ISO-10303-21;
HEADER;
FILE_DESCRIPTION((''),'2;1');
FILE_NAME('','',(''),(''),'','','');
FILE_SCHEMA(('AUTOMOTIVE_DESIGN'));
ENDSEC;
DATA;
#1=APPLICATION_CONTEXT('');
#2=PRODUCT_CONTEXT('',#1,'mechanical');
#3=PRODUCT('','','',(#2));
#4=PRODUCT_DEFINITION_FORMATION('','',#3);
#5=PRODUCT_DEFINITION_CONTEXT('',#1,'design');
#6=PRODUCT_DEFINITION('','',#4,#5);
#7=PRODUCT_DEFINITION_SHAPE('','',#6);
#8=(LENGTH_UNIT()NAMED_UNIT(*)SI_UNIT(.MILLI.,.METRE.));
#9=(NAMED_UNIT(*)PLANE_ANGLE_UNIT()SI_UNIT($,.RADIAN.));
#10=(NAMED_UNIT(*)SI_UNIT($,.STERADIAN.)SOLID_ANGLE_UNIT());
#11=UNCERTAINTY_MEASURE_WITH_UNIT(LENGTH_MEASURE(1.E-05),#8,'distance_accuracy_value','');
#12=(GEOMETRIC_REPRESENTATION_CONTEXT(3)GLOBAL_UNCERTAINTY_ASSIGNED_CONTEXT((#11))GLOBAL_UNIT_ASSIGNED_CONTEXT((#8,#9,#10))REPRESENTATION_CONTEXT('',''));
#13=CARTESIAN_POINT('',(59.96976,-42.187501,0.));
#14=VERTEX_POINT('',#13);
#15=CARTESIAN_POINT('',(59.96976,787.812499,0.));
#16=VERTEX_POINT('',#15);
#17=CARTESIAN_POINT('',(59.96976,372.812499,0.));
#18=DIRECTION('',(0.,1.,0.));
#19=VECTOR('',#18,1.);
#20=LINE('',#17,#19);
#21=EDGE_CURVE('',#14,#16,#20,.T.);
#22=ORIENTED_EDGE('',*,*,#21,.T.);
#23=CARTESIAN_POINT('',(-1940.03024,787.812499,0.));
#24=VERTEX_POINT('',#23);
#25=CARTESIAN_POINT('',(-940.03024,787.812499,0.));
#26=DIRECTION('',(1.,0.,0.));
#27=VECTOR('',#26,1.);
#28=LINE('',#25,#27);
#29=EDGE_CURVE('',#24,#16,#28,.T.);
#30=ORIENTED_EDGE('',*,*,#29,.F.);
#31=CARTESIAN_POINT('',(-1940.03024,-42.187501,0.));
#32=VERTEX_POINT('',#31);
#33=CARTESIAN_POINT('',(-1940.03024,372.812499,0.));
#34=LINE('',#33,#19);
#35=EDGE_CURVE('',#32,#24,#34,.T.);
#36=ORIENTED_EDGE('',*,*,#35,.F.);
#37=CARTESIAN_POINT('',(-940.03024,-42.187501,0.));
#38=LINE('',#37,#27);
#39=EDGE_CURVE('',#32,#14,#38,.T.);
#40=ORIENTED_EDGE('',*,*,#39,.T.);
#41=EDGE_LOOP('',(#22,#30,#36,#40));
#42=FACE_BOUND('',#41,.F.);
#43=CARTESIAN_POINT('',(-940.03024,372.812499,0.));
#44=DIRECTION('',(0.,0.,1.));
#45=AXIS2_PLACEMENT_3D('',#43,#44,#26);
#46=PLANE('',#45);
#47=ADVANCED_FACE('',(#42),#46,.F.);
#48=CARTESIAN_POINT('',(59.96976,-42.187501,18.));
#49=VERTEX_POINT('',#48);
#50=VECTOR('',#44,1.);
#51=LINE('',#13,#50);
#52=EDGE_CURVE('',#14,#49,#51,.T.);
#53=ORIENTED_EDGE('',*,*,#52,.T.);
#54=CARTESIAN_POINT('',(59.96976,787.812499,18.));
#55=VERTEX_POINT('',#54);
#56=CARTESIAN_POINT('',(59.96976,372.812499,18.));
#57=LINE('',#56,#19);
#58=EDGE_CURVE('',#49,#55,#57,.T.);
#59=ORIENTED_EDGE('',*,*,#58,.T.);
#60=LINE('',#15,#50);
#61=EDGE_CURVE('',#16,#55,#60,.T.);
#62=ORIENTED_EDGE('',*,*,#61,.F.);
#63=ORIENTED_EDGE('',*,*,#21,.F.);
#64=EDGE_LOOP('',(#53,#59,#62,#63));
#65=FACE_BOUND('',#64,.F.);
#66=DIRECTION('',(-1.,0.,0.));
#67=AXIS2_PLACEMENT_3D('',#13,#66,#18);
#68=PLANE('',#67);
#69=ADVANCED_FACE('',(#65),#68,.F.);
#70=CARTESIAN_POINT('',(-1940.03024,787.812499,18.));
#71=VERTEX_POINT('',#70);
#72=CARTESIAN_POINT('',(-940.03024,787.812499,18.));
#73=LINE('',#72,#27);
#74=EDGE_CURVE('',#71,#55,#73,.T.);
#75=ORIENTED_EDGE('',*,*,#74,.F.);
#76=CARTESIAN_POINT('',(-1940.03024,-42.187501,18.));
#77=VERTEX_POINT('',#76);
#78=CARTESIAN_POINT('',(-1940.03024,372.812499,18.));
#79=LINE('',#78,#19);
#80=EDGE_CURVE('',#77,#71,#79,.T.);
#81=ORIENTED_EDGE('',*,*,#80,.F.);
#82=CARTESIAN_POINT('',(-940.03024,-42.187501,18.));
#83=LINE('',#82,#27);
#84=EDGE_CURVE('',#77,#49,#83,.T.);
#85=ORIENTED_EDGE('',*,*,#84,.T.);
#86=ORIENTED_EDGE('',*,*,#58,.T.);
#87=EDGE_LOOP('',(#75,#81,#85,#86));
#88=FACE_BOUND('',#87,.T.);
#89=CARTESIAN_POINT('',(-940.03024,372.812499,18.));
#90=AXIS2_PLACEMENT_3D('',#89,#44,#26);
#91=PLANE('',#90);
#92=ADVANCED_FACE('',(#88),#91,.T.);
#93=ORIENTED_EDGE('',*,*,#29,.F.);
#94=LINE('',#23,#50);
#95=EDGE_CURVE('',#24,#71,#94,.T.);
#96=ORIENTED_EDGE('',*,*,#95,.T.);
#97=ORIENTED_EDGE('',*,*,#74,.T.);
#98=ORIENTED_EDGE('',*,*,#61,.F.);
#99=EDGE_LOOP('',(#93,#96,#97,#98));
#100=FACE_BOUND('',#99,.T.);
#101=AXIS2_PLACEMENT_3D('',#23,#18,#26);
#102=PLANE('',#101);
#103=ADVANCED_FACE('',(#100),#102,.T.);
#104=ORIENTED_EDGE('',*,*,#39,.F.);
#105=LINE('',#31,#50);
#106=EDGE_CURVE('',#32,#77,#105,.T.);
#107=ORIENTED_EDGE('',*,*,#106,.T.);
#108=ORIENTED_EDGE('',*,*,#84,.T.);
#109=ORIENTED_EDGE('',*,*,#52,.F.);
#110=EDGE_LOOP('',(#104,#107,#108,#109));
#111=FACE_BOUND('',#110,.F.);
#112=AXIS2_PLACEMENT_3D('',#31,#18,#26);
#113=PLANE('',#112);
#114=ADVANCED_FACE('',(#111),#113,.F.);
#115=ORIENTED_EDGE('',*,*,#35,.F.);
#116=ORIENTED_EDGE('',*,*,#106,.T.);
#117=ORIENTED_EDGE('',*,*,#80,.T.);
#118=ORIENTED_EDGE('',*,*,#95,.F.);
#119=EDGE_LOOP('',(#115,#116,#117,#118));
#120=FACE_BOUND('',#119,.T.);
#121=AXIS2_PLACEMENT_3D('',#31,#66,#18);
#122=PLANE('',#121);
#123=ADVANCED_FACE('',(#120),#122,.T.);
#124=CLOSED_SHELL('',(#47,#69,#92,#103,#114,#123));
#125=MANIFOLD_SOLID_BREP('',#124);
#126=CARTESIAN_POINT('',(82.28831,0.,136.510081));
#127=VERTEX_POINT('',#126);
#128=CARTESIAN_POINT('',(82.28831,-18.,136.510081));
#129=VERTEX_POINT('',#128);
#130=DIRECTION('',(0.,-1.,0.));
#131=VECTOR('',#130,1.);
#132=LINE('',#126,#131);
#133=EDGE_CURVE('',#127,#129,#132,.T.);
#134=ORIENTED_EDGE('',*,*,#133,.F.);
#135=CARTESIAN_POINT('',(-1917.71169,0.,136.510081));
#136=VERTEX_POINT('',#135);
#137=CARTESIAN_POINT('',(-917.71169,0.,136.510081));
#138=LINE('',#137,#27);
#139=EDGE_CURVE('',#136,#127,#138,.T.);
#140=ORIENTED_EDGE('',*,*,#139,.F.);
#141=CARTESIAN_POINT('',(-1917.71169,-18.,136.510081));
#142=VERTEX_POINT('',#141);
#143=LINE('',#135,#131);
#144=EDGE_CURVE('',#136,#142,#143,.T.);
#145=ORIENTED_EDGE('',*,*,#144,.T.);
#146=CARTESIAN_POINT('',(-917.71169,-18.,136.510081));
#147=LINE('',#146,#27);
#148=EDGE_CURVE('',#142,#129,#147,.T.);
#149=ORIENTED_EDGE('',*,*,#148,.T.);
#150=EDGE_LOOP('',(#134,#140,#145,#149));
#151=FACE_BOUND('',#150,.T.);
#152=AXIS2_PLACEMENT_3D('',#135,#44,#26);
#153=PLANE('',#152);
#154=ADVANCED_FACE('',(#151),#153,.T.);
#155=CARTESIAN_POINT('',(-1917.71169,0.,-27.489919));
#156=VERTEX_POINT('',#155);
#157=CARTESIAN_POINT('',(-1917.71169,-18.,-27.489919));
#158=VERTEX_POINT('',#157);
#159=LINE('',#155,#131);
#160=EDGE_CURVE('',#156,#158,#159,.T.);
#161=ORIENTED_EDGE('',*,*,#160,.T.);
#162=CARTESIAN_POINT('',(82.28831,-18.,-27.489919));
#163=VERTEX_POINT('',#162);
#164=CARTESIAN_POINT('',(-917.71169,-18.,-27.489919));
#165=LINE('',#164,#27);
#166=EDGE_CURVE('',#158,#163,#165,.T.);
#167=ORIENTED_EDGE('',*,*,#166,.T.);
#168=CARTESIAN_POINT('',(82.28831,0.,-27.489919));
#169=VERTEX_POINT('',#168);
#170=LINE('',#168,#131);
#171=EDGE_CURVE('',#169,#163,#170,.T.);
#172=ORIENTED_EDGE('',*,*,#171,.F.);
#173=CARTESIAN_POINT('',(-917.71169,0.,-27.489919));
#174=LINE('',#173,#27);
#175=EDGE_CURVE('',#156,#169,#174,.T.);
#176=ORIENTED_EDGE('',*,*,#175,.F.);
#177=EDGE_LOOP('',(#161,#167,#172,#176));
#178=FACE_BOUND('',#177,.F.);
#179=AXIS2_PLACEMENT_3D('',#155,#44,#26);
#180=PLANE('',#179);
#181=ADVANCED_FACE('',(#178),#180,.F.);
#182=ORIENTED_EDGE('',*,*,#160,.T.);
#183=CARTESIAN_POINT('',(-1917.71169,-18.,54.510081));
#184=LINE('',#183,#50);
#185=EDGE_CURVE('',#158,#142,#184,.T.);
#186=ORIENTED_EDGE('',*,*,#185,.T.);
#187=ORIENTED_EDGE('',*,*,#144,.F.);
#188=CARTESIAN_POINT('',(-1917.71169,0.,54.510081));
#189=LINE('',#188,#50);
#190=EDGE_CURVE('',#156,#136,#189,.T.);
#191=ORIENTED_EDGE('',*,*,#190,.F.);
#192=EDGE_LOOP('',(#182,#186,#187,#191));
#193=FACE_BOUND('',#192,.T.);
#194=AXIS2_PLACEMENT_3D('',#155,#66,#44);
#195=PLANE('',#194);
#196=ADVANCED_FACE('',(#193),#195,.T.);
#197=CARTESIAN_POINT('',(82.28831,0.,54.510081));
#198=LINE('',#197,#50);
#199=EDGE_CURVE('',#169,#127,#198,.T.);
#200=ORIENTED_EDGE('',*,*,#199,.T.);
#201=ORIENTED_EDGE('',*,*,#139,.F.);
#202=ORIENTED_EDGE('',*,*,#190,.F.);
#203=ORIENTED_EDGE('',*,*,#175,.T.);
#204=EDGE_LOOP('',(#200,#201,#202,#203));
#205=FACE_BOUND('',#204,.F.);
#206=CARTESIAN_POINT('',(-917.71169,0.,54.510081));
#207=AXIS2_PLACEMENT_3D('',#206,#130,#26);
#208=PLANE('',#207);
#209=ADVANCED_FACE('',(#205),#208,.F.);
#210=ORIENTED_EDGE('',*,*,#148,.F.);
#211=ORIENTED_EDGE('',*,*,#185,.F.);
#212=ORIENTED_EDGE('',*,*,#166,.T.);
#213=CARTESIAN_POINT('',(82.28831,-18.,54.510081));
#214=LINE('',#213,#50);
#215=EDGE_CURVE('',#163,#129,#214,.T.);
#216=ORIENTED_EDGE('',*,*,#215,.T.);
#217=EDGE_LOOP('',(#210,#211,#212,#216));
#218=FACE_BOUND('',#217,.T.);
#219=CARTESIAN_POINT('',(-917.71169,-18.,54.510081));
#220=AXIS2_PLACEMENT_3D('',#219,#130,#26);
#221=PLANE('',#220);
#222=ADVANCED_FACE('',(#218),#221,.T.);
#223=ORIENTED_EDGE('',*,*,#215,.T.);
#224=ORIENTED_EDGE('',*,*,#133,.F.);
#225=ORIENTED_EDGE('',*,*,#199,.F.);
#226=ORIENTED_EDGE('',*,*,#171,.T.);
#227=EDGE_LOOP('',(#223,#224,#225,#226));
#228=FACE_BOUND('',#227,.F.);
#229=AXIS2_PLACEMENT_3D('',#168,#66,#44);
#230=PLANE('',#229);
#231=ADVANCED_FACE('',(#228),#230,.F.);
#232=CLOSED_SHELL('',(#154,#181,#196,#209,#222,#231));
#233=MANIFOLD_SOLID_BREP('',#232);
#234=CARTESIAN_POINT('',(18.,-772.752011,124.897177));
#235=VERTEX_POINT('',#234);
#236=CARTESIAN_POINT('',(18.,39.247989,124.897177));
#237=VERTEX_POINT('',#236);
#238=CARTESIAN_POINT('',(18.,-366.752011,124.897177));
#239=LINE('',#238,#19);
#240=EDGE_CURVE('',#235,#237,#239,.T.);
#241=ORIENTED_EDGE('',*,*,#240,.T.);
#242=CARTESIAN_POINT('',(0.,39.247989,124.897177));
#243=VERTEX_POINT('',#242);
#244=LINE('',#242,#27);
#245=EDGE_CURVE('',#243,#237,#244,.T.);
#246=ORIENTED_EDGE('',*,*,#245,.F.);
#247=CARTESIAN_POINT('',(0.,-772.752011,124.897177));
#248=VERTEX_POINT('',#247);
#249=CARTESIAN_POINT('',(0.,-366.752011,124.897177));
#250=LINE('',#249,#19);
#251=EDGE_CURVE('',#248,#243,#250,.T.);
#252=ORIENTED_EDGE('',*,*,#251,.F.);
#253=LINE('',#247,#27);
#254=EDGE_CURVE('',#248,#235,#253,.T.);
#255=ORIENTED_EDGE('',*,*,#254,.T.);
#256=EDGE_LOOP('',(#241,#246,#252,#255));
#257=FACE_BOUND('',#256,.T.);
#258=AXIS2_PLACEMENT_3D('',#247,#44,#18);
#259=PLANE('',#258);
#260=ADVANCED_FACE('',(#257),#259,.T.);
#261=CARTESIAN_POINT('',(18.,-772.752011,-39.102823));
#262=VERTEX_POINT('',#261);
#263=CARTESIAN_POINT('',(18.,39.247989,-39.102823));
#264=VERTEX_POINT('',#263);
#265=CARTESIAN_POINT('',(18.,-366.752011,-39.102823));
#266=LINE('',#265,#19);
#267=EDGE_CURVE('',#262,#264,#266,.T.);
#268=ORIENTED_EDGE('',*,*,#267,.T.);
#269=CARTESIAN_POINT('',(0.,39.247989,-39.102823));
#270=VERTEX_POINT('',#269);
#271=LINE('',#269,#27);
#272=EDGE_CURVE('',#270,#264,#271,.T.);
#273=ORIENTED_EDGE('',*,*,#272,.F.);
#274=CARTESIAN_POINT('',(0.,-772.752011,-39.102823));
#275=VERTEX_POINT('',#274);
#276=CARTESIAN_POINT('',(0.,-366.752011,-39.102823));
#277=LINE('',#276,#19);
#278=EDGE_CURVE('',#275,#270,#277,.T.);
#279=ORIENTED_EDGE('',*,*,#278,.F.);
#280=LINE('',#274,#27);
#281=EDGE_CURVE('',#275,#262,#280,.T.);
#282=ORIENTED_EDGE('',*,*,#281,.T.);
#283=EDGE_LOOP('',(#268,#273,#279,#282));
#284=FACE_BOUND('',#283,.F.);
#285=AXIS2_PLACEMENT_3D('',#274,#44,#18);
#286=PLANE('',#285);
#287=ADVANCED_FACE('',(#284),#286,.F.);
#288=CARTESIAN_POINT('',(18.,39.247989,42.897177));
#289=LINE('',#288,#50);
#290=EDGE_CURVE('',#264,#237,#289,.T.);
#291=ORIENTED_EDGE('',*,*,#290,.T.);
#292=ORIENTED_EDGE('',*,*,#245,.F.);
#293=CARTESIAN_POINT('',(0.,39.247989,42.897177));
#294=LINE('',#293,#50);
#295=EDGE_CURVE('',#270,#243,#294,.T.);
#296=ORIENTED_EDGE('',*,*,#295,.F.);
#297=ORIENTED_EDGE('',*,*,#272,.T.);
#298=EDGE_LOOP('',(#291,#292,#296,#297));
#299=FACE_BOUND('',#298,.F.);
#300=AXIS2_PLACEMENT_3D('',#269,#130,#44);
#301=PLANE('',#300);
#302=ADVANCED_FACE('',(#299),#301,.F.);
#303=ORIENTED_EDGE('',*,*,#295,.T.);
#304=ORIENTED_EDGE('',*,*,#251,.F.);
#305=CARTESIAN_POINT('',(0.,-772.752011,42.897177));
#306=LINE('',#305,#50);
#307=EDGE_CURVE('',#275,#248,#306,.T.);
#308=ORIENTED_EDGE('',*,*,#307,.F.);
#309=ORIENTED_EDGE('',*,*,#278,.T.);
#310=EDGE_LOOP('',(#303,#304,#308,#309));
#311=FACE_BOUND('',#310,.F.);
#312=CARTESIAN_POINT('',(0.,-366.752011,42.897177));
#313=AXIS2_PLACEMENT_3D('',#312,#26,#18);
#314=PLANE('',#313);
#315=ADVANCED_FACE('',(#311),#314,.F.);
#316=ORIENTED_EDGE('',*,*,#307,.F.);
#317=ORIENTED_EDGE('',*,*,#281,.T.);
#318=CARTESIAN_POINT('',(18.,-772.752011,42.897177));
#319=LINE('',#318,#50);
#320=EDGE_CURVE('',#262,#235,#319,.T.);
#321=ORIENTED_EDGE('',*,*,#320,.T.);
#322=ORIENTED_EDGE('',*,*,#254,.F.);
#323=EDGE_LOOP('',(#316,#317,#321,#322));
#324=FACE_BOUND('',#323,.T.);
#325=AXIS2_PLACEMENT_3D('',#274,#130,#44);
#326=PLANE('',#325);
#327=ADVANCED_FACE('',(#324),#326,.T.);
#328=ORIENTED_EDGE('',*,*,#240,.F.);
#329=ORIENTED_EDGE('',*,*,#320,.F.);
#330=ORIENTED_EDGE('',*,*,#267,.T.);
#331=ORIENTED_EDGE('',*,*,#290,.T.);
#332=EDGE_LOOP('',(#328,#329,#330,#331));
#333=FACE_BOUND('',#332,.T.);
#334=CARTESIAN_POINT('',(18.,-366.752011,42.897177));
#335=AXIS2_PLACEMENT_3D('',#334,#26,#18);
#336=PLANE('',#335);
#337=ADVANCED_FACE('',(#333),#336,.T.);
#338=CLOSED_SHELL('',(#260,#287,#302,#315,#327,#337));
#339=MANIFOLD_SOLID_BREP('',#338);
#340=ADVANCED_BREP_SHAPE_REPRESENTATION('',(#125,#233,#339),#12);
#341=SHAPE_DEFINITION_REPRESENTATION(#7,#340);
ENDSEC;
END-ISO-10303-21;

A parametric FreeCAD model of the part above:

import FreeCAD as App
import Part
import Sketcher

doc = App.newDocument("Part")
body = doc.addObject("PartDesign::Body", "Body")

# Sketch on XY plane
sketch1 = body.newObject("Sketcher::SketchObject", "Sketch")
sketch1.AttachmentSupport = (doc.getObject("XY_Plane"), [""])
sketch1.MapMode = "FlatFace"
sketch1.addGeometry([
    Part.LineSegment(App.Vector(-1940, 788, 0), App.Vector(-1940, -42, 0)),
    Part.LineSegment(App.Vector(-1940, -42, 0), App.Vector(60, -42, 0)),
    Part.LineSegment(App.Vector(60, -42, 0), App.Vector(60, 788, 0)),
    Part.LineSegment(App.Vector(60, 788, 0), App.Vector(-1940, 788, 0)),
], False)
sketch1.addConstraint([
    Sketcher.Constraint("Coincident", 0, 2, 1, 1),
    Sketcher.Constraint("Coincident", 1, 2, 2, 1),
    Sketcher.Constraint("Coincident", 2, 2, 3, 1),
    Sketcher.Constraint("Coincident", 3, 2, 0, 1),
    Sketcher.Constraint("Vertical", 0),
    Sketcher.Constraint("Horizontal", 1),
    Sketcher.Constraint("Vertical", 2),
    Sketcher.Constraint("Horizontal", 3),
    Sketcher.Constraint("DistanceX", 1, 1, 1, 2, 2000.0),
    Sketcher.Constraint("DistanceY", 0, 2, 0, 1, 830.0),
    Sketcher.Constraint("DistanceY", 0, 2, -1, 1, 42.187501),
    Sketcher.Constraint("DistanceX", 0, 2, -1, 1, 1940.03024),
])
pad1 = body.newObject("PartDesign::Pad", "Pad")
pad1.Profile = sketch1
pad1.Length = 18
body2 = doc.addObject("PartDesign::Body", "Body001")

# Sketch on XZ plane
sketch2 = body2.newObject("Sketcher::SketchObject", "Sketch001")
sketch2.AttachmentSupport = (doc.getObject("XZ_Plane001"), [""])
sketch2.MapMode = "FlatFace"
sketch2.addGeometry([
    Part.LineSegment(App.Vector(-1918, 137, 0), App.Vector(-1918, -27, 0)),
    Part.LineSegment(App.Vector(-1918, -27, 0), App.Vector(82, -27, 0)),
    Part.LineSegment(App.Vector(82, -27, 0), App.Vector(82, 137, 0)),
    Part.LineSegment(App.Vector(82, 137, 0), App.Vector(-1918, 137, 0)),
], False)
sketch2.addConstraint([
    Sketcher.Constraint("Coincident", 0, 2, 1, 1),
    Sketcher.Constraint("Coincident", 1, 2, 2, 1),
    Sketcher.Constraint("Coincident", 2, 2, 3, 1),
    Sketcher.Constraint("Coincident", 3, 2, 0, 1),
    Sketcher.Constraint("Vertical", 0),
    Sketcher.Constraint("Horizontal", 1),
    Sketcher.Constraint("Vertical", 2),
    Sketcher.Constraint("Horizontal", 3),
    Sketcher.Constraint("DistanceX", 1, 1, 1, 2, 2000.0),
    Sketcher.Constraint("DistanceY", 0, 2, 0, 1, 164.0),
    Sketcher.Constraint("DistanceX", 0, 2, -1, 1, 1917.71169),
    Sketcher.Constraint("DistanceY", 0, 2, -1, 1, 27.489919),
])
pad2 = body2.newObject("PartDesign::Pad", "Pad001")
pad2.Profile = sketch2
pad2.Length = 18
body3 = doc.addObject("PartDesign::Body", "Body002")

# Sketch on YZ plane
sketch3 = body3.newObject("Sketcher::SketchObject", "Sketch002")
sketch3.AttachmentSupport = (doc.getObject("YZ_Plane002"), [""])
sketch3.MapMode = "FlatFace"
sketch3.addGeometry([
    Part.LineSegment(App.Vector(-773, 125, 0), App.Vector(-773, -39, 0)),
    Part.LineSegment(App.Vector(-773, -39, 0), App.Vector(39, -39, 0)),
    Part.LineSegment(App.Vector(39, -39, 0), App.Vector(39, 125, 0)),
    Part.LineSegment(App.Vector(39, 125, 0), App.Vector(-773, 125, 0)),
], False)
sketch3.addConstraint([
    Sketcher.Constraint("Coincident", 0, 2, 1, 1),
    Sketcher.Constraint("Coincident", 1, 2, 2, 1),
    Sketcher.Constraint("Coincident", 2, 2, 3, 1),
    Sketcher.Constraint("Coincident", 3, 2, 0, 1),
    Sketcher.Constraint("Vertical", 0),
    Sketcher.Constraint("Horizontal", 1),
    Sketcher.Constraint("Vertical", 2),
    Sketcher.Constraint("Horizontal", 3),
    Sketcher.Constraint("DistanceX", 1, 1, 1, 2, 812.0),
    Sketcher.Constraint("DistanceY", 0, 2, 0, 1, 164.0),
    Sketcher.Constraint("DistanceX", 0, 2, -1, 1, 772.752011),
    Sketcher.Constraint("DistanceY", 0, 2, -1, 1, 39.102823),
])
pad3 = body3.newObject("PartDesign::Pad", "Pad002")
pad3.Profile = sketch3
pad3.Length = 18

doc.recompute()
